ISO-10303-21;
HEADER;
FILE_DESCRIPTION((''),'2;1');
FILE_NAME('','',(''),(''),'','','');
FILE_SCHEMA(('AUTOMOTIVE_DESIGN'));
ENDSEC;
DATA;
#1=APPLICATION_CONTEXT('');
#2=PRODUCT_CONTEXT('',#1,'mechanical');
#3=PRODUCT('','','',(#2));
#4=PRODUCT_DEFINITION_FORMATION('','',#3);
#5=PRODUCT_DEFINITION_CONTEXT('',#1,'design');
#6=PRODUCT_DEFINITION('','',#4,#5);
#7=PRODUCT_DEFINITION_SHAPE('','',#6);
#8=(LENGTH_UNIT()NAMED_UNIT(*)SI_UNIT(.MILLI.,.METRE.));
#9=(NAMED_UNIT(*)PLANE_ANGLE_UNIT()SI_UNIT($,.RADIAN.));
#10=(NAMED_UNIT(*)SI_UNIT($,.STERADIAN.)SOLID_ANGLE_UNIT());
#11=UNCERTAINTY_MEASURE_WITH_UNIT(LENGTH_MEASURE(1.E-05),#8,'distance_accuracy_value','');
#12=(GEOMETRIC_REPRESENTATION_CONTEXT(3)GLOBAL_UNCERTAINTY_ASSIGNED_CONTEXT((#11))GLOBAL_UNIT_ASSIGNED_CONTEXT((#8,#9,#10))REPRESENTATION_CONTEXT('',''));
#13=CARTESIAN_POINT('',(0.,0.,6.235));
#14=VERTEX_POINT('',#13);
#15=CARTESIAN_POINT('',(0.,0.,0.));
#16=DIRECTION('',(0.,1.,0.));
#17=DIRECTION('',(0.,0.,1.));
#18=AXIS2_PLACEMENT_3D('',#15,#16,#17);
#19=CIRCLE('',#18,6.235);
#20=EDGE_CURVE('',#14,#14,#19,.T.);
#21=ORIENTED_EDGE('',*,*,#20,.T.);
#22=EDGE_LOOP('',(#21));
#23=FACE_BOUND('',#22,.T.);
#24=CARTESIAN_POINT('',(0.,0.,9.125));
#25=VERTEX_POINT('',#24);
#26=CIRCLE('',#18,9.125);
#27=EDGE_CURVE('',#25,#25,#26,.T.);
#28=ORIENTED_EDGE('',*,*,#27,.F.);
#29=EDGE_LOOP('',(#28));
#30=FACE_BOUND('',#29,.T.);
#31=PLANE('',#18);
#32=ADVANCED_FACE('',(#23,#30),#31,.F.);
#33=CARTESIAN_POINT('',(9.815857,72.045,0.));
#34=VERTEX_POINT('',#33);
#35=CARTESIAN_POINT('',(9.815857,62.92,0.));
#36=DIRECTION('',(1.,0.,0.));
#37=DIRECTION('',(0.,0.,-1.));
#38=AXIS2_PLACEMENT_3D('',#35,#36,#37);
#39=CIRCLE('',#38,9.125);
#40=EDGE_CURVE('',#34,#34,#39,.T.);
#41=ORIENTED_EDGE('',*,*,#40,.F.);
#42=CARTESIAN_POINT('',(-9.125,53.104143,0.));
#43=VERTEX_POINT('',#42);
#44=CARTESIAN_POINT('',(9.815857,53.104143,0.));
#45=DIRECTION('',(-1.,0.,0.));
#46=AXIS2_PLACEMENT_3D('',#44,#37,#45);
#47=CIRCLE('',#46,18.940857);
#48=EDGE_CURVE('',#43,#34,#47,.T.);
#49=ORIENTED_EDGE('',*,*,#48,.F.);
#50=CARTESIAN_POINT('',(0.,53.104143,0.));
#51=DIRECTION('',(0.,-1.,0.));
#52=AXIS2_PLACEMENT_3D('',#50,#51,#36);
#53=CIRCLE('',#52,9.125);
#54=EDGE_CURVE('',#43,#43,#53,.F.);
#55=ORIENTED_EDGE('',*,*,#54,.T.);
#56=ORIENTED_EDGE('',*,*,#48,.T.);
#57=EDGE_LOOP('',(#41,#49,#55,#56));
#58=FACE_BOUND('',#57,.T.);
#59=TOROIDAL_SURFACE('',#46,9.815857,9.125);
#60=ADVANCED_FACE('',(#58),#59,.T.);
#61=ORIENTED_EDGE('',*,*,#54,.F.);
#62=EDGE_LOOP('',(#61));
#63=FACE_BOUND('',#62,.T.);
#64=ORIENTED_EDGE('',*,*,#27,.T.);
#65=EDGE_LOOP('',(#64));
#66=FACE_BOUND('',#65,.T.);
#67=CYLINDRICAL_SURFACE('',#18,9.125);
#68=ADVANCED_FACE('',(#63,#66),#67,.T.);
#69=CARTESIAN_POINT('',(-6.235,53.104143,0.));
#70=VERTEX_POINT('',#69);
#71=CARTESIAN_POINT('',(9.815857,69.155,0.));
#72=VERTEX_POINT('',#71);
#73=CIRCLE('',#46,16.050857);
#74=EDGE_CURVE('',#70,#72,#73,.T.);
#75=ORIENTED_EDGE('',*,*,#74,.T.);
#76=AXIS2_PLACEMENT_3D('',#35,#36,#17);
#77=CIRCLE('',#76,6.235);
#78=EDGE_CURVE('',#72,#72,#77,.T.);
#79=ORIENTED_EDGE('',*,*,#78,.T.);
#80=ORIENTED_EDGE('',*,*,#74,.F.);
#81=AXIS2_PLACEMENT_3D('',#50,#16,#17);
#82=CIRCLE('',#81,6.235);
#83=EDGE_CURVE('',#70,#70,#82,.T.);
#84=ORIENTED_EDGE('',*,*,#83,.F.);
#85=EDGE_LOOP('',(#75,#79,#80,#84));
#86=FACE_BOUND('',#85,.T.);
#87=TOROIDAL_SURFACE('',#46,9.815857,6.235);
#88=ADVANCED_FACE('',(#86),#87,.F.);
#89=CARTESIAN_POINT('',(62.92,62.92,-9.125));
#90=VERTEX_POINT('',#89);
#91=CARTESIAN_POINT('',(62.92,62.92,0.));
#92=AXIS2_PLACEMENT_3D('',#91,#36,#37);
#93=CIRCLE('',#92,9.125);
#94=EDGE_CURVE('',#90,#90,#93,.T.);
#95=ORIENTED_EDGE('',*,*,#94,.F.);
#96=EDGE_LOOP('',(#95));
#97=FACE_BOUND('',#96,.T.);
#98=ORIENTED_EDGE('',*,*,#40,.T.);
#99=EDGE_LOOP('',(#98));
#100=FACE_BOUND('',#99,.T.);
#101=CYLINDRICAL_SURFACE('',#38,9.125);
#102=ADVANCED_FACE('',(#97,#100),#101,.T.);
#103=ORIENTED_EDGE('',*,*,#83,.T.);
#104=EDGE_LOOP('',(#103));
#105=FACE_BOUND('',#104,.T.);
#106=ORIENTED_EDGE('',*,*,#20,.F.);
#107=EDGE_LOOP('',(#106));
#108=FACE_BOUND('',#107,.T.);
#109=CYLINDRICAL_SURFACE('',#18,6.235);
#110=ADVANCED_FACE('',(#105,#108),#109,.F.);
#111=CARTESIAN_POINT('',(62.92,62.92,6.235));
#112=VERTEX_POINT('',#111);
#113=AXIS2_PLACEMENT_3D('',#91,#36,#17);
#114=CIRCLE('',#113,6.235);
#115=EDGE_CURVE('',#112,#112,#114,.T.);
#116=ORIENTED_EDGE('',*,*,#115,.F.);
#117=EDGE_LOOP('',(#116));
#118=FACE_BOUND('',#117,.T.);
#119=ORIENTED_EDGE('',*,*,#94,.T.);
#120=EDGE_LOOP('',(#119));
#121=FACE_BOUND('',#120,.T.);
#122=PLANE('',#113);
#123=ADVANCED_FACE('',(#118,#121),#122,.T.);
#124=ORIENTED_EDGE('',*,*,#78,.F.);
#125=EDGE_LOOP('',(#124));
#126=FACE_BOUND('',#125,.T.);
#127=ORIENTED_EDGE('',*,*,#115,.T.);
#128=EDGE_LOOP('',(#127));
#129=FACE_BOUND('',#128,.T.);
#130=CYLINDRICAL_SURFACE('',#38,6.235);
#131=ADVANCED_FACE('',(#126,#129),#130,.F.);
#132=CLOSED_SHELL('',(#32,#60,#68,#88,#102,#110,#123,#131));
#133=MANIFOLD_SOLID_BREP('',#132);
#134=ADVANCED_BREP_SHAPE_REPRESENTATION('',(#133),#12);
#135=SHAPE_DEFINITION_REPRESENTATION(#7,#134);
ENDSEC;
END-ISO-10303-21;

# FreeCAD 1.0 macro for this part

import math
import FreeCAD as App
import Part
import Sketcher

V = App.Vector

doc = App.newDocument("Part")
body = doc.addObject("PartDesign::Body", "Body")

# Sketch on XZ plane
sketch1 = doc.addObject("Sketcher::SketchObject", "Sketch")
body.addObject(sketch1)
sketch1.AttachmentSupport = (doc.XZ_Plane, [""])
sketch1.MapMode = "FlatFace"
sketch1.addGeometry(Part.Circle(V(0, 0, 0), V(0, 0, 1), 9.125), False)
sketch1.addGeometry(Part.Circle(V(0, 0, 0), V(0, 0, 1), 6.235), False)
sketch1.addConstraint(Sketcher.Constraint("Coincident", 0, 3, -1, 1))
sketch1.addConstraint(Sketcher.Constraint("Coincident", 1, 3, -1, 1))
sketch1.addConstraint(Sketcher.Constraint("Diameter", 0, 18.25))
sketch1.addConstraint(Sketcher.Constraint("Diameter", 1, 12.47))

# Sketch on XY plane
sketch2 = doc.addObject("Sketcher::SketchObject", "Sketch001")
body.addObject(sketch2)
sketch2.AttachmentSupport = (doc.XY_Plane, [""])
sketch2.MapMode = "FlatFace"
sketch2.addGeometry(Part.LineSegment(V(0, 0, 0), V(0, 53.104143, 0)), False)
sketch2.addGeometry(Part.ArcOfCircle(Part.Circle(V(9.815857, 53.104143, 0), V(0, 0, 1), 9.815857), math.radians(90), math.radians(180)), False)
sketch2.addGeometry(Part.LineSegment(V(9.815857, 62.92, 0), V(62.92, 62.92, 0)), False)
sketch2.addConstraint(Sketcher.Constraint("Tangent", 0, 2, 1, 2))
sketch2.addConstraint(Sketcher.Constraint("Tangent", 1, 1, 2, 1))
sketch2.addConstraint(Sketcher.Constraint("Vertical", 0))
sketch2.addConstraint(Sketcher.Constraint("Horizontal", 2))
sketch2.addConstraint(Sketcher.Constraint("Coincident", 0, 1, -1, 1))
sketch2.addConstraint(Sketcher.Constraint("Equal", 2, 0))
sketch2.addConstraint(Sketcher.Constraint("DistanceY", -1, 1, 1, 1, 62.92))
sketch2.addConstraint(Sketcher.Constraint("Radius", 1, 9.815857))
doc.recompute()

additivepipe = doc.addObject("PartDesign::AdditivePipe", "AdditivePipe")
body.addObject(additivepipe)
additivepipe.Profile = sketch1
additivepipe.Spine = (sketch2, ["Edge1", "Edge2", "Edge3"])

doc.recompute()
